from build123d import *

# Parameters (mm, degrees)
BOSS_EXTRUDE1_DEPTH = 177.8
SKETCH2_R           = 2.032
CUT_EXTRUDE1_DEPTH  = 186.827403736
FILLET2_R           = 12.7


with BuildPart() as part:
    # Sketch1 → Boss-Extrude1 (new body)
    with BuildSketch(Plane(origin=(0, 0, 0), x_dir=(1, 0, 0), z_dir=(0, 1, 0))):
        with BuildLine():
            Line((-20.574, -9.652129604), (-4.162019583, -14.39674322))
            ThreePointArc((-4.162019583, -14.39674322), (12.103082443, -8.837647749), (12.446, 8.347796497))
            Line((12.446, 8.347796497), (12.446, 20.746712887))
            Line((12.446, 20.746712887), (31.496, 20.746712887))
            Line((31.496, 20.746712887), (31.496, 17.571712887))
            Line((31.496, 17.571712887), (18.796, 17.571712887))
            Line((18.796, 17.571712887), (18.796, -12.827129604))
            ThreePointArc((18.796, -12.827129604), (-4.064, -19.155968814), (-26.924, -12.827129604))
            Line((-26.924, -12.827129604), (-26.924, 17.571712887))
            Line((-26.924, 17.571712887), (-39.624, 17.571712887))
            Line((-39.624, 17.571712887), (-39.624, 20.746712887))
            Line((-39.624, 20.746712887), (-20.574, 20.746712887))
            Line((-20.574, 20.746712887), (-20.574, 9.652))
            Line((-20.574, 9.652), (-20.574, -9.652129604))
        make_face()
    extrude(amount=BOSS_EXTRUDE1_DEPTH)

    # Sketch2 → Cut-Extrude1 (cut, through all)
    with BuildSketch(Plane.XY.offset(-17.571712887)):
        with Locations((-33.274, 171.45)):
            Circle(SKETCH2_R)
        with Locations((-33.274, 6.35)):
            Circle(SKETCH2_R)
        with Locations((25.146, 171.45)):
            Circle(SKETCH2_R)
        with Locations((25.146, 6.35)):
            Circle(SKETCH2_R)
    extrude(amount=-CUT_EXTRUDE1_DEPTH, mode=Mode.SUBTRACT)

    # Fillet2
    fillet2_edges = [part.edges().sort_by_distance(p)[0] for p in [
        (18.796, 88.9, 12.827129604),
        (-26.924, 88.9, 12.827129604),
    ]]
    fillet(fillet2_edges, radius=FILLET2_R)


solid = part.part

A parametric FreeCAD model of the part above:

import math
import FreeCAD as App
import Part
import Sketcher

V = App.Vector
Q = App.Units.Quantity


def edges_at(feature, points):
    """Names of the edges that pass closest to the given points."""
    edges = feature.Shape.Edges
    near = lambda p: min(range(len(edges)), key=lambda i: edges[i].distToShape(Part.Vertex(*p))[0])
    return sorted({f"Edge{near(p) + 1}" for p in points})

doc = App.newDocument("Part")
body = doc.addObject("PartDesign::Body", "Body")

# Sketch on XZ plane
sketch1 = body.newObject("Sketcher::SketchObject", "Sketch")
sketch1.AttachmentSupport = (doc.getObject("XZ_Plane"), [""])
sketch1.MapMode = "FlatFace"
sketch1.addGeometry([
    Part.LineSegment(V(-4.2, 14.4, 0), V(-20.6, 9.7, 0)),  # 0
    Part.LineSegment(V(-20.6, 9.7, 0), V(-20.6, -20.7, 0)),  # 1
    Part.LineSegment(V(-20.6, -20.7, 0), V(-39.6, -20.7, 0)),  # 2
    Part.LineSegment(V(-39.6, -20.7, 0), V(-39.6, -17.6, 0)),  # 3
    Part.LineSegment(V(-39.6, -17.6, 0), V(-26.9, -17.6, 0)),  # 4
    Part.LineSegment(V(-26.9, -17.6, 0), V(-26.9, 12.8, 0)),  # 5
    Part.ArcOfCircle(Part.Circle(V(-4.1, -25.3, 0), V(0, 0, 1), 44.4), math.radians(59), math.radians(121)),  # 6
    Part.LineSegment(V(18.8, 12.8, 0), V(18.8, -17.6, 0)),  # 7
    Part.LineSegment(V(18.8, -17.6, 0), V(31.5, -17.6, 0)),  # 8
    Part.LineSegment(V(31.5, -17.6, 0), V(31.5, -20.7, 0)),  # 9
    Part.LineSegment(V(31.5, -20.7, 0), V(12.4, -20.7, 0)),  # 10
    Part.LineSegment(V(12.4, -20.7, 0), V(12.4, -8.3, 0)),  # 11
    Part.ArcOfCircle(Part.Circle(V(0, 0, 0), V(0, 0, 1), 15), math.radians(-34), math.radians(106)),  # 12
], False)
sketch1.addConstraint([
    Sketcher.Constraint("Coincident", 0, 2, 1, 1),
    Sketcher.Constraint("Coincident", 1, 2, 2, 1),
    Sketcher.Constraint("Coincident", 2, 2, 3, 1),
    Sketcher.Constraint("Coincident", 3, 2, 4, 1),
    Sketcher.Constraint("Coincident", 4, 2, 5, 1),
    Sketcher.Constraint("Coincident", 5, 2, 6, 2),
    Sketcher.Constraint("Coincident", 6, 1, 7, 1),
    Sketcher.Constraint("Coincident", 7, 2, 8, 1),
    Sketcher.Constraint("Coincident", 8, 2, 9, 1),
    Sketcher.Constraint("Coincident", 9, 2, 10, 1),
    Sketcher.Constraint("Coincident", 10, 2, 11, 1),
    Sketcher.Constraint("Coincident", 11, 2, 12, 1),
    Sketcher.Constraint("Tangent", 12, 2, 0, 1),
    Sketcher.Constraint("Vertical", 1),
    Sketcher.Constraint("Horizontal", 2),
    Sketcher.Constraint("Vertical", 3),
    Sketcher.Constraint("Horizontal", 4),
    Sketcher.Constraint("Vertical", 5),
    Sketcher.Constraint("Vertical", 7),
    Sketcher.Constraint("Horizontal", 8),
    Sketcher.Constraint("Vertical", 9),
    Sketcher.Constraint("Horizontal", 10),
    Sketcher.Constraint("Vertical", 11),
    Sketcher.Constraint("Coincident", 12, 3, -1, 1),
    Sketcher.Constraint("Horizontal", 5, 2, 6, 1),
    Sketcher.Constraint("Horizontal", 4, 2, 7, 2),
    Sketcher.Constraint("Horizontal", 2, 2, 9, 2),
    Sketcher.Constraint("Equal", 4, 8),
    Sketcher.Constraint("Equal", 2, 10),
    Sketcher.Constraint("Equal", 1, 5),
    Sketcher.Constraint("Radius", 6, Q("1.75 in")),
    Sketcher.Constraint("DistanceX", 4, 1, 4, 2, Q("0.5 in")),
    Sketcher.Constraint("DistanceX", 2, 2, 2, 1, Q("0.75 in")),
    Sketcher.Constraint("DistanceX", 2, 2, 6, 3, Q("1.4 in")),
    Sketcher.Constraint("DistanceY", 3, 1, 3, 2, Q("0.125 in")),
    Sketcher.Constraint("DistanceX", 6, 3, -1, 1, Q("0.16 in")),
    Sketcher.Constraint("Radius", 12, 14.986281),
    Sketcher.Constraint("Distance", 0, Q("0.6726 in")),
    Sketcher.Constraint("DistanceY", 1, 2, 1, 1, 30.398842),
])
pad1 = body.newObject("PartDesign::Pad", "Pad")
pad1.Profile = sketch1
pad1.Length = Q("7 in")
pad1.Reversed = True

# Sketch on XY plane
sketch2 = body.newObject("Sketcher::SketchObject", "Sketch001")
sketch2.AttachmentSupport = (doc.getObject("XY_Plane"), [""])
sketch2.MapMode = "FlatFace"
sketch2.AttachmentOffset = App.Placement(V(0, 0, -17.571713), App.Rotation())
sketch2.addGeometry([
    Part.Circle(V(-33.3, 171.4, 0), V(0, 0, 1), 2),
    Part.Circle(V(-33.3, 6.3, 0), V(0, 0, 1), 2),
    Part.Circle(V(25.1, 171.4, 0), V(0, 0, 1), 2),
    Part.Circle(V(25.1, 6.3, 0), V(0, 0, 1), 2),
], False)
sketch2.addConstraint([
    Sketcher.Constraint("Equal", 0, 1),
    Sketcher.Constraint("Equal", 1, 2),
    Sketcher.Constraint("Equal", 2, 3),
    Sketcher.Constraint("Horizontal", 0, 3, 2, 3),
    Sketcher.Constraint("Horizontal", 1, 3, 3, 3),
    Sketcher.Constraint("Vertical", 0, 3, 1, 3),
    Sketcher.Constraint("Vertical", 2, 3, 3, 3),
    Sketcher.Constraint("Diameter", 0, Q("0.16 in")),
    Sketcher.Constraint("DistanceY", 1, 3, 0, 3, Q("6.5 in")),
    Sketcher.Constraint("DistanceX", 0, 3, 2, 3, Q("2.3 in")),
    Sketcher.Constraint("DistanceX", 0, 3, -1, 1, Q("1.31 in")),
    Sketcher.Constraint("DistanceY", -1, 1, 0, 3, Q("6.75 in")),
])
pocket1 = body.newObject("PartDesign::Pocket", "Pocket")
pocket1.Profile = sketch2
pocket1.Type = "ThroughAll"
doc.recompute()

fillet = body.newObject("PartDesign::Fillet", "Fillet")
fillet.Base = (pocket1, edges_at(pocket1, [(18.796, 88.9, 12.827), (-26.924, 88.9, 12.827)]))
fillet.Radius = Q("0.5 in")

doc.recompute()
